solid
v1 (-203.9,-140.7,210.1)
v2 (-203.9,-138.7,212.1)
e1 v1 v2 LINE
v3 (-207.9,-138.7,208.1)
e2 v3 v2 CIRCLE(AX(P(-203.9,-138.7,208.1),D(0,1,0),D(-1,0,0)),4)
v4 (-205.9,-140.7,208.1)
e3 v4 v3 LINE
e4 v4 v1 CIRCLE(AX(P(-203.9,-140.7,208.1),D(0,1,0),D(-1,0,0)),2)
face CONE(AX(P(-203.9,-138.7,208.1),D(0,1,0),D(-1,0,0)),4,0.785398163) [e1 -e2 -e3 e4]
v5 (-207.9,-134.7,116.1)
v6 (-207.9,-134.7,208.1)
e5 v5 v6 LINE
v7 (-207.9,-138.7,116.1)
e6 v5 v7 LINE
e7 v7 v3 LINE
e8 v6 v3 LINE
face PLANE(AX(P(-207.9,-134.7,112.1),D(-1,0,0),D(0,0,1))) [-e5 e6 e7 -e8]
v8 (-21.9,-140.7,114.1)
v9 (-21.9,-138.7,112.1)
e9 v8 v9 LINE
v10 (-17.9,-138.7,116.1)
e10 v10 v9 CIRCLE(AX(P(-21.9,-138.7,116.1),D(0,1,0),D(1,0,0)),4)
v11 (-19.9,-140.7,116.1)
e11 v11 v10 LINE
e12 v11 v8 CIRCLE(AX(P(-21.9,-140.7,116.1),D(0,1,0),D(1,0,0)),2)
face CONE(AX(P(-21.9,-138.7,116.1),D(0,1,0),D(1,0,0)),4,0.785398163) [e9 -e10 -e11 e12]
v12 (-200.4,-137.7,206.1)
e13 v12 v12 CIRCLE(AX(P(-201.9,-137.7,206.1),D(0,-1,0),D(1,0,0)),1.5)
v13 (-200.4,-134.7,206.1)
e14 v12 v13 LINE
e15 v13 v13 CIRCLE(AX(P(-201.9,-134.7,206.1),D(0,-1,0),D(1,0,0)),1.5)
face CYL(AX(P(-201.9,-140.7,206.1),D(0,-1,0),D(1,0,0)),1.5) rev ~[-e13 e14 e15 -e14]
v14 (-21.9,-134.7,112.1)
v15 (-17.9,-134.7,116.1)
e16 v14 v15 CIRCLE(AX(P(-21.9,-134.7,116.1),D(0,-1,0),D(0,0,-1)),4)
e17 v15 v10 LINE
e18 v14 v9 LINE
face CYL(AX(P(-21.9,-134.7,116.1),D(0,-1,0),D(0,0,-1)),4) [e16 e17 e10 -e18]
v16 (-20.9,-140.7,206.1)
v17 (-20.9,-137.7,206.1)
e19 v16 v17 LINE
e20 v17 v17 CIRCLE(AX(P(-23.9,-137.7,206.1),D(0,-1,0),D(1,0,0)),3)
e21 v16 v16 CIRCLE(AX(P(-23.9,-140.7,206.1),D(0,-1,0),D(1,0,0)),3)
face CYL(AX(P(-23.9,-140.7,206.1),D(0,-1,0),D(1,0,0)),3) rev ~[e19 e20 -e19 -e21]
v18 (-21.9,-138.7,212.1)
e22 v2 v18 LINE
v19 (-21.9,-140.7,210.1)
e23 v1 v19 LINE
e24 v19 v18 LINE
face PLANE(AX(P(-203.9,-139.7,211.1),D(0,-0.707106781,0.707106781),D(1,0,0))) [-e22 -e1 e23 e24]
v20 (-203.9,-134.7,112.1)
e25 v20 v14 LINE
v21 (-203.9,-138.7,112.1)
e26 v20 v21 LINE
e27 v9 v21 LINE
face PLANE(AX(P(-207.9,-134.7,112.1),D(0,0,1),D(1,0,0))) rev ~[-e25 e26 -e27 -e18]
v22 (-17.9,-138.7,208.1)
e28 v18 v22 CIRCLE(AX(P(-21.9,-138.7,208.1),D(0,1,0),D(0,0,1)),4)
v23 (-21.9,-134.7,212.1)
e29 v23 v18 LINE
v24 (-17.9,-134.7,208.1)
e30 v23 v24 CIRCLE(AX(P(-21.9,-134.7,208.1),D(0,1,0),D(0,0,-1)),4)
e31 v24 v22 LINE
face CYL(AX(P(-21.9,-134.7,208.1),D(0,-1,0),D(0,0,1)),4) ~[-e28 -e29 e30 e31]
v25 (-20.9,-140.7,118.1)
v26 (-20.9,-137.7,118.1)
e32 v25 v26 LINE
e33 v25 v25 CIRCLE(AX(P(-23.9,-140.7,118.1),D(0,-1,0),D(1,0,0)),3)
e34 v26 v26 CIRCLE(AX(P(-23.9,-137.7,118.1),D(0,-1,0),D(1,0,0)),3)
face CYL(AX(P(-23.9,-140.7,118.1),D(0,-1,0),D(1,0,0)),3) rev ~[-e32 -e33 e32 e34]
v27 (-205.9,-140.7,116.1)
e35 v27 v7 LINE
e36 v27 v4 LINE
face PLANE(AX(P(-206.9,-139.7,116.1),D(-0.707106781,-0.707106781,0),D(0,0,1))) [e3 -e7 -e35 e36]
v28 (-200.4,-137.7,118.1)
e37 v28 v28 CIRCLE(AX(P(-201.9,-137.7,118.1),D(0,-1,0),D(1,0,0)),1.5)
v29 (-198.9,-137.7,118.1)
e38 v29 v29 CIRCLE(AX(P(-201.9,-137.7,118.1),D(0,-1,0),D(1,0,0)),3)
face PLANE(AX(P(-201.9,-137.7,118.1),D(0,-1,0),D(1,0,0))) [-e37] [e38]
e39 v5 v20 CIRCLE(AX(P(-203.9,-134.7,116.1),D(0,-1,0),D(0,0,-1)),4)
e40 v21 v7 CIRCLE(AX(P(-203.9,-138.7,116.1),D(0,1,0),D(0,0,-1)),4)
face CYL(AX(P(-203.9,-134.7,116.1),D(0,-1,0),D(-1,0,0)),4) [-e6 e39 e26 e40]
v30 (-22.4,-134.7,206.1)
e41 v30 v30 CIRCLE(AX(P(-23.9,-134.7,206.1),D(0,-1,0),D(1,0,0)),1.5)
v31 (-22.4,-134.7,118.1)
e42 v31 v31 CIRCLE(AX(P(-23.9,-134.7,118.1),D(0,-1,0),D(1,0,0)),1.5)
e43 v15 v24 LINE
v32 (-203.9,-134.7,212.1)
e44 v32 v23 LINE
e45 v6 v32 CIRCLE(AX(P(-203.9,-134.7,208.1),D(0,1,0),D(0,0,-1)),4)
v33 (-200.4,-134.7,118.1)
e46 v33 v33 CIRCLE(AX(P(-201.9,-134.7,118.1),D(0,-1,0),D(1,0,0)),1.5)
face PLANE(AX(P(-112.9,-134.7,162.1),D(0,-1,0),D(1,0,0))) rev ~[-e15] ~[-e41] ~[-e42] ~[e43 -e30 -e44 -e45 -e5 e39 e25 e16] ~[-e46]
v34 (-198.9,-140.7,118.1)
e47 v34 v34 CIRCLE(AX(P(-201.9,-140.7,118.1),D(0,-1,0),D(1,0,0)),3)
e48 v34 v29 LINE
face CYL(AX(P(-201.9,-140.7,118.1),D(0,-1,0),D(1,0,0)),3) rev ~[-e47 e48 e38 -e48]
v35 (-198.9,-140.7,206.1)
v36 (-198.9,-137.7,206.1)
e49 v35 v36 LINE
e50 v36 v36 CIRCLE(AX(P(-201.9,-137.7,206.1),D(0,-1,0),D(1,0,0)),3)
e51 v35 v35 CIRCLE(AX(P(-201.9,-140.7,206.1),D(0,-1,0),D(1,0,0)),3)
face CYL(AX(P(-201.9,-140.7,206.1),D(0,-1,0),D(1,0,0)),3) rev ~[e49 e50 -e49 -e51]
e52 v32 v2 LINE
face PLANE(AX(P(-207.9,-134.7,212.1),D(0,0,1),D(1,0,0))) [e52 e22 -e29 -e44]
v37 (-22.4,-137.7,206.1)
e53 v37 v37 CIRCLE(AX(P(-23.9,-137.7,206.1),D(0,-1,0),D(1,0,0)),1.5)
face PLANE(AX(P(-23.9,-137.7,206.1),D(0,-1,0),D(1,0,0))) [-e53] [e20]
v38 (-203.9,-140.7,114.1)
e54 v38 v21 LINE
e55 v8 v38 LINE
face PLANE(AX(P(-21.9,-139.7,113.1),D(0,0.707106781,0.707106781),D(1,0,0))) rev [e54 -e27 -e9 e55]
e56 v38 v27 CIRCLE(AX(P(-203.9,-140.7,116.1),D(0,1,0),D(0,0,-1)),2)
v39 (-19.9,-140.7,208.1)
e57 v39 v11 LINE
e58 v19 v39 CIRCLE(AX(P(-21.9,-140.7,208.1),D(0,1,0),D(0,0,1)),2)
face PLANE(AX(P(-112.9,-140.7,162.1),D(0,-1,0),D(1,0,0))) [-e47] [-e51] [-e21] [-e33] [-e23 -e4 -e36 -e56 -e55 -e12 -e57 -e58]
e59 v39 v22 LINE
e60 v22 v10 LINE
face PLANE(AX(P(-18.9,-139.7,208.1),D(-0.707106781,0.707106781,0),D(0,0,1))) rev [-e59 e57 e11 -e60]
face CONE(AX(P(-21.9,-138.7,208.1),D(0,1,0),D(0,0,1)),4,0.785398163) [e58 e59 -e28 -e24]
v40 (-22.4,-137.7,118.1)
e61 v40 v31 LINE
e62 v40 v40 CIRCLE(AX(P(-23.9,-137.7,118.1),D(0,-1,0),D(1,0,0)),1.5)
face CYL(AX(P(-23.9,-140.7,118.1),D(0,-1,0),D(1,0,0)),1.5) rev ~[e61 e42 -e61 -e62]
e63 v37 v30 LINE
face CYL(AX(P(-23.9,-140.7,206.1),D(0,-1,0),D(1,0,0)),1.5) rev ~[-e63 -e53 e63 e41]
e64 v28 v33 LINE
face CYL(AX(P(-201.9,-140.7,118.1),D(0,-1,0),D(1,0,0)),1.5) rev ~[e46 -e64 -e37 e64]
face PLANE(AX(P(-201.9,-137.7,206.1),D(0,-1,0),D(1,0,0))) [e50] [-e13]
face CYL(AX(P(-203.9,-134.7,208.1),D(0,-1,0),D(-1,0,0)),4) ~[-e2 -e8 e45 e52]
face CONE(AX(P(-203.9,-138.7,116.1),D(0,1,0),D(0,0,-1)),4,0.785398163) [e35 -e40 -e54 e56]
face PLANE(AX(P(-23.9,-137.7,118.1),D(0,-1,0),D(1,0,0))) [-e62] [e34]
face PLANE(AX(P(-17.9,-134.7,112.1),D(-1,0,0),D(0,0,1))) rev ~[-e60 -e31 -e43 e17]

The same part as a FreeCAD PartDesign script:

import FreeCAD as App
import Part
import Sketcher
Q = App.Units.Quantity


def edges_at(feature, points):
    """Names of the edges that pass closest to the given points."""
    edges = feature.Shape.Edges
    near = lambda p: min(range(len(edges)), key=lambda i: edges[i].distToShape(Part.Vertex(*p))[0])
    return sorted({f"Edge{near(p) + 1}" for p in points})


def add_polygon(sketch, points):
    """Adds a closed chain of lines whose ends are joined by coincident constraints."""
    first, n = sketch.GeometryCount, len(points)
    for a, b in zip(points, points[1:] + points[:1]):
        sketch.addGeometry(Part.LineSegment(App.Vector(*a, 0), App.Vector(*b, 0)), False)
    for i in range(n):
        sketch.addConstraint(Sketcher.Constraint("Coincident", first + i, 2, first + (i + 1) % n, 1))

doc = App.newDocument("Part")
body = doc.addObject("PartDesign::Body", "Body")

# Sketch on XZ plane
sketch1 = body.newObject("Sketcher::SketchObject", "Sketch")
sketch1.AttachmentSupport = (doc.getObject("XZ_Plane"), [""])
sketch1.MapMode = "FlatFace"
add_polygon(sketch1, [(-190, 100), (-190, 0), (0, 0), (0, 100)])  # lines 0-3
sketch1.addConstraint(Sketcher.Constraint("Vertical", 0))
sketch1.addConstraint(Sketcher.Constraint("Horizontal", 1))
sketch1.addConstraint(Sketcher.Constraint("Vertical", 2))
sketch1.addConstraint(Sketcher.Constraint("Horizontal", 3))
sketch1.addConstraint(Sketcher.Constraint("Coincident", 1, 2, -1, 1))
sketch1.addConstraint(Sketcher.Constraint("DistanceX", 1, 1, 1, 2, Q("190 mm")))
sketch1.addConstraint(Sketcher.Constraint("DistanceY", 0, 2, 0, 1, Q("100 mm")))
pad1 = body.newObject("PartDesign::Pad", "Pad")
pad1.Profile = sketch1
pad1.Length = 6

# Sketch on XZ plane
sketch2 = body.newObject("Sketcher::SketchObject", "Sketch001")
sketch2.AttachmentSupport = (doc.getObject("XZ_Plane"), [""])
sketch2.MapMode = "FlatFace"
sketch2.AttachmentOffset = App.Placement(App.Vector(0, 0, 6), App.Rotation())
sketch2.addGeometry(Part.Circle(App.Vector(-184, 94, 0), App.Vector(0, 0, 1), 1.5), False)
sketch2.addGeometry(Part.Circle(App.Vector(-6, 94, 0), App.Vector(0, 0, 1), 1.5), False)
sketch2.addGeometry(Part.Circle(App.Vector(-184, 6, 0), App.Vector(0, 0, 1), 1.5), False)
sketch2.addGeometry(Part.Circle(App.Vector(-6, 6, 0), App.Vector(0, 0, 1), 1.5), False)
sketch2.addConstraint(Sketcher.Constraint("Equal", 0, 1))
sketch2.addConstraint(Sketcher.Constraint("Equal", 1, 2))
sketch2.addConstraint(Sketcher.Constraint("Equal", 2, 3))
sketch2.addConstraint(Sketcher.Constraint("Horizontal", 0, 3, 1, 3))
sketch2.addConstraint(Sketcher.Constraint("Horizontal", 2, 3, 3, 3))
sketch2.addConstraint(Sketcher.Constraint("Vertical", 0, 3, 2, 3))
sketch2.addConstraint(Sketcher.Constraint("Vertical", 1, 3, 3, 3))
sketch2.addConstraint(Sketcher.Constraint("Diameter", 0, Q("3 mm")))
sketch2.addConstraint(Sketcher.Constraint("DistanceX", 0, 3, -1, 1, Q("184 mm")))
sketch2.addConstraint(Sketcher.Constraint("DistanceY", -1, 1, 0, 3, Q("94 mm")))
sketch2.addConstraint(Sketcher.Constraint("DistanceX", 1, 3, -1, 1, Q("6 mm")))
sketch2.addConstraint(Sketcher.Constraint("DistanceY", -1, 1, 2, 3, Q("6 mm")))
pocket1 = body.newObject("PartDesign::Pocket", "Pocket")
pocket1.Profile = sketch2
pocket1.Type = "ThroughAll"

# Sketch on XZ plane
sketch3 = body.newObject("Sketcher::SketchObject", "Sketch002")
sketch3.AttachmentSupport = (doc.getObject("XZ_Plane"), [""])
sketch3.MapMode = "FlatFace"
sketch3.AttachmentOffset = App.Placement(App.Vector(0, 0, 6), App.Rotation())
sketch3.addGeometry(Part.Circle(App.Vector(-184, 94, 0), App.Vector(0, 0, 1), 3), False)
sketch3.addGeometry(Part.Circle(App.Vector(-6, 94, 0), App.Vector(0, 0, 1), 3), False)
sketch3.addGeometry(Part.Circle(App.Vector(-184, 6, 0), App.Vector(0, 0, 1), 3), False)
sketch3.addGeometry(Part.Circle(App.Vector(-6, 6, 0), App.Vector(0, 0, 1), 3), False)
sketch3.addConstraint(Sketcher.Constraint("Equal", 0, 1))
sketch3.addConstraint(Sketcher.Constraint("Equal", 1, 2))
sketch3.addConstraint(Sketcher.Constraint("Equal", 2, 3))
sketch3.addConstraint(Sketcher.Constraint("Horizontal", 0, 3, 1, 3))
sketch3.addConstraint(Sketcher.Constraint("Horizontal", 2, 3, 3, 3))
sketch3.addConstraint(Sketcher.Constraint("Vertical", 0, 3, 2, 3))
sketch3.addConstraint(Sketcher.Constraint("Vertical", 1, 3, 3, 3))
sketch3.addConstraint(Sketcher.Constraint("Diameter", 0, Q("6 mm")))
sketch3.addConstraint(Sketcher.Constraint("DistanceX", 0, 3, -1, 1, Q("184 mm")))
sketch3.addConstraint(Sketcher.Constraint("DistanceY", -1, 1, 0, 3, Q("94 mm")))
sketch3.addConstraint(Sketcher.Constraint("DistanceX", 1, 3, -1, 1, Q("6 mm")))
sketch3.addConstraint(Sketcher.Constraint("DistanceY", -1, 1, 2, 3, Q("6 mm")))
pocket2 = body.newObject("PartDesign::Pocket", "Pocket001")
pocket2.Profile = sketch3
pocket2.Length = 3
doc.recompute()

fillet = body.newObject("PartDesign::Fillet", "Fillet")
fillet.Base = (pocket2, edges_at(pocket2, [
    (-190, -3, 100),
    (0, -3, 100),
    (0, -3, 0),
    (-190, -3, 0),
]))
fillet.Radius = 4
doc.recompute()

chamfer = body.newObject("PartDesign::Chamfer", "Chamfer")
chamfer.Base = (fillet, edges_at(fillet, [(-95, -6, 100)]))
chamfer.Size = 2
body2 = doc.addObject("PartDesign::Body", "Body001")
doc.recompute()

body.Placement = App.Placement(App.Vector(-17.9, -134.7, 112.1), App.Rotation(App.Vector(0, 0, 1), 0))
boolean = body2.newObject("PartDesign::Boolean", "Boolean")
boolean.Type = "Fuse"
boolean.addObjects([body])

doc.recompute()
